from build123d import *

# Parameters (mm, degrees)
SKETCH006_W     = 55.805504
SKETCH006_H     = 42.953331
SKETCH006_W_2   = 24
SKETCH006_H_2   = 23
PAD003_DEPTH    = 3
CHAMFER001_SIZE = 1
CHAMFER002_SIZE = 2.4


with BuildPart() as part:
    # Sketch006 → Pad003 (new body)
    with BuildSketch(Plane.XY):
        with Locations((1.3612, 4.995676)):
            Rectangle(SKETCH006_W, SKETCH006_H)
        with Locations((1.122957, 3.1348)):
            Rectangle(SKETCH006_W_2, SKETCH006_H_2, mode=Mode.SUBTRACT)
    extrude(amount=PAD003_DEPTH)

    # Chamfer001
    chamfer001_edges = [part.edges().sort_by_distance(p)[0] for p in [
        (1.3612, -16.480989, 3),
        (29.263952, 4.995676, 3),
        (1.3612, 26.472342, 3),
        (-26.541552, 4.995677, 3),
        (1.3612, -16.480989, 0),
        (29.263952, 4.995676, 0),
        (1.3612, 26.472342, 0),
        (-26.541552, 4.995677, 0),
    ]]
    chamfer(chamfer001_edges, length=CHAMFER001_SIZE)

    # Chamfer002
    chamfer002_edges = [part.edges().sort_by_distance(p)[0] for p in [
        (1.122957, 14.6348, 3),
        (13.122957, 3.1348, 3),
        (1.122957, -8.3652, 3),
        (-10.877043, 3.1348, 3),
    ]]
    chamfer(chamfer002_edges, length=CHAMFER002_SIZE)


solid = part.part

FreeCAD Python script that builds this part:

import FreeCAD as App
import Part
import Sketcher
from FreeCAD import Vector


def edges_at(feature, points):
    """Names of the edges that pass closest to the given points."""
    edges = feature.Shape.Edges
    near = lambda p: min(range(len(edges)), key=lambda i: edges[i].distToShape(Part.Vertex(*p))[0])
    return sorted({f"Edge{near(p) + 1}" for p in points})

doc = App.newDocument("Part")
body = doc.addObject("PartDesign::Body", "Body")

# Sketch on XY plane
sketch1 = body.newObject("Sketcher::SketchObject", "Sketch")
sketch1.AttachmentSupport = (doc.getObject("XY_Plane"), [""])
sketch1.MapMode = "FlatFace"
sketch1.addGeometry([
    Part.LineSegment(Vector(-26.541552, 26.472341, 0), Vector(-26.541552, -16.480989, 0)),  # 0
    Part.LineSegment(Vector(-26.541552, -16.480989, 0), Vector(29.263952, -16.480989, 0)),  # 1
    Part.LineSegment(Vector(29.263952, -16.480989, 0), Vector(29.263952, 26.472341, 0)),  # 2
    Part.LineSegment(Vector(29.263952, 26.472341, 0), Vector(-26.541552, 26.472341, 0)),  # 3
    Part.LineSegment(Vector(13.122957, -8.3652, 0), Vector(-10.877043, -8.3652, 0)),  # 4
    Part.LineSegment(Vector(-10.877043, -8.3652, 0), Vector(-10.877043, 14.6348, 0)),  # 5
    Part.LineSegment(Vector(-10.877043, 14.6348, 0), Vector(13.122957, 14.6348, 0)),  # 6
    Part.LineSegment(Vector(13.122957, 14.6348, 0), Vector(13.122957, -8.3652, 0)),  # 7
], False)
sketch1.addConstraint([
    Sketcher.Constraint("Coincident", 0, 2, 1, 1),
    Sketcher.Constraint("Coincident", 1, 2, 2, 1),
    Sketcher.Constraint("Coincident", 2, 2, 3, 1),
    Sketcher.Constraint("Coincident", 3, 2, 0, 1),
    Sketcher.Constraint("Coincident", 4, 2, 5, 1),
    Sketcher.Constraint("Coincident", 5, 2, 6, 1),
    Sketcher.Constraint("Coincident", 6, 2, 7, 1),
    Sketcher.Constraint("Coincident", 7, 2, 4, 1),
    Sketcher.Constraint("Vertical", 0),
    Sketcher.Constraint("Horizontal", 1),
    Sketcher.Constraint("Vertical", 2),
    Sketcher.Constraint("Horizontal", 3),
    Sketcher.Constraint("Horizontal", 4),
    Sketcher.Constraint("Vertical", 5),
    Sketcher.Constraint("Horizontal", 6),
    Sketcher.Constraint("Vertical", 7),
    Sketcher.Constraint("DistanceX", 4, 2, 4, 1, 24.0),
    Sketcher.Constraint("DistanceY", 5, 1, 5, 2, 23.0),
    Sketcher.Constraint("DistanceY", 0, 2, 0, 1, 42.953331),
    Sketcher.Constraint("DistanceY", 4, 2, -1, 1, 8.3652),
    Sketcher.Constraint("DistanceX", 1, 1, 1, 2, 55.805504),
    Sketcher.Constraint("DistanceX", 0, 2, -1, 1, 26.541552),
    Sketcher.Constraint("DistanceY", 0, 2, -1, 1, 16.480989),
    Sketcher.Constraint("DistanceX", 0, 2, 4, 2, 15.664509),
])
pad1 = body.newObject("PartDesign::Pad", "Pad")
pad1.Profile = sketch1
pad1.Length = 3
doc.recompute()

chamfer = body.newObject("PartDesign::Chamfer", "Chamfer")
chamfer.Base = (pad1, edges_at(pad1, [
    (1.361, -16.481, 3),
    (29.264, 4.996, 3),
    (1.361, 26.472, 3),
    (-26.542, 4.996, 3),
    (1.361, -16.481, 0),
    (29.264, 4.996, 0),
    (1.361, 26.472, 0),
    (-26.542, 4.996, 0),
]))
chamfer.Size = 1
doc.recompute()

chamfer2 = body.newObject("PartDesign::Chamfer", "Chamfer001")
chamfer2.Base = (chamfer, edges_at(chamfer, [
    (1.123, 14.635, 3),
    (13.123, 3.135, 3),
    (1.123, -8.365, 3),
    (-10.877, 3.135, 3),
]))
chamfer2.Size = 2.4

doc.recompute()
